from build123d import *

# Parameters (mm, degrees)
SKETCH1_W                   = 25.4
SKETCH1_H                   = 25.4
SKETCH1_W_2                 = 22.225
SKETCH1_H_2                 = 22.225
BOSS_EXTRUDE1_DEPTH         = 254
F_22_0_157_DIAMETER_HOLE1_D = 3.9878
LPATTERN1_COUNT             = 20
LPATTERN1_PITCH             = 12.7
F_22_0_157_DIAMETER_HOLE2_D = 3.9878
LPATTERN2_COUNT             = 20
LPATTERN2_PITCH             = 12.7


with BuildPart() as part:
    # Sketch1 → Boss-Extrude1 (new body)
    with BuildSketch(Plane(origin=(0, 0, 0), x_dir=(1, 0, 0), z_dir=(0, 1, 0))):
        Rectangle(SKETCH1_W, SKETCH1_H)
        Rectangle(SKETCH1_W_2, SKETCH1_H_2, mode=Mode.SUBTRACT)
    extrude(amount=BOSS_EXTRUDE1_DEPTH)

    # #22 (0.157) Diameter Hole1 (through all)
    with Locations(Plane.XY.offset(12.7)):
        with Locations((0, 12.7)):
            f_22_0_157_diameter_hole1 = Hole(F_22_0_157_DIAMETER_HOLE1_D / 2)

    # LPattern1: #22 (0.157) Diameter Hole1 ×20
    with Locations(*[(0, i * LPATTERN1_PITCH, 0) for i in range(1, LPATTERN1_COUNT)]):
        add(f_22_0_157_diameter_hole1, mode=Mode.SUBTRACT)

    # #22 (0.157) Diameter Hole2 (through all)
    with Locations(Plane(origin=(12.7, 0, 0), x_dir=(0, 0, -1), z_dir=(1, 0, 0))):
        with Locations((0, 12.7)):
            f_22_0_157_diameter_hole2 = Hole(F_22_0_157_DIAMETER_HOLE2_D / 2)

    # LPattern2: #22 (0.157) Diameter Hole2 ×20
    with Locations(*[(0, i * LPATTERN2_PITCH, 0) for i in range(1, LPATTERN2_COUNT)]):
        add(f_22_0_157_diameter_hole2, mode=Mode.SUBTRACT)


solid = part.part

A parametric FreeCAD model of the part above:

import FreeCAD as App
import Part
import Sketcher

V = App.Vector
Q = App.Units.Quantity


def add_polygon(sketch, points):
    """Adds a closed chain of lines whose ends are joined by coincident constraints."""
    first, n = sketch.GeometryCount, len(points)
    for a, b in zip(points, points[1:] + points[:1]):
        sketch.addGeometry(Part.LineSegment(App.Vector(*a, 0), App.Vector(*b, 0)), False)
    for i in range(n):
        sketch.addConstraint(Sketcher.Constraint("Coincident", first + i, 2, first + (i + 1) % n, 1))

doc = App.newDocument("Part")
body = doc.addObject("PartDesign::Body", "Body")

sketch1 = body.newObject("Sketcher::SketchObject", "Sketch")
sketch1.AttachmentSupport = (doc.getObject("XZ_Plane"), [""])
sketch1.MapMode = "FlatFace"
add_polygon(sketch1, [(-13, -13), (-13, 13), (13, 13), (13, -13)])
add_polygon(sketch1, [(11, 11), (-11, 11), (-11, -11), (11, -11)])
sketch1.addConstraint(Sketcher.Constraint("Vertical", 0))
sketch1.addConstraint(Sketcher.Constraint("Horizontal", 1))
sketch1.addConstraint(Sketcher.Constraint("Vertical", 2))
sketch1.addConstraint(Sketcher.Constraint("Horizontal", 3))
sketch1.addConstraint(Sketcher.Constraint("Horizontal", 4))
sketch1.addConstraint(Sketcher.Constraint("Vertical", 5))
sketch1.addConstraint(Sketcher.Constraint("Horizontal", 6))
sketch1.addConstraint(Sketcher.Constraint("Vertical", 7))
sketch1.addConstraint(Sketcher.Constraint("Symmetric", 0, 2, 2, 2, -1, 1))
sketch1.addConstraint(Sketcher.Constraint("Symmetric", 4, 2, 6, 2, -1, 1))
sketch1.addConstraint(Sketcher.Constraint("Equal", 3, 0))
sketch1.addConstraint(Sketcher.Constraint("Equal", 6, 5))
sketch1.addConstraint(Sketcher.Constraint("DistanceX", 1, 1, 1, 2, Q("1 in")))
sketch1.addConstraint(Sketcher.Constraint("DistanceX", 4, 2, 4, 1, Q("0.875 in")))
pad1 = body.newObject("PartDesign::Pad", "Pad")
pad1.Profile = sketch1
pad1.Length = Q("10 in")
pad1.Reversed = True

sketch2 = body.newObject("Sketcher::SketchObject", "Sketch001")
sketch2.AttachmentSupport = (doc.getObject("XY_Plane"), [""])
sketch2.MapMode = "FlatFace"
sketch2.AttachmentOffset = App.Placement(V(0, 0, 0.5 * 25.4), App.Rotation())
sketch2.addGeometry(Part.Circle(V(0, 12.7, 0), V(0, 0, 1), 2), False)
sketch2.addConstraint(Sketcher.Constraint("PointOnObject", 0, 3, -2))
sketch2.addConstraint(Sketcher.Constraint("Diameter", 0, Q("0.157 in")))
sketch2.addConstraint(Sketcher.Constraint("DistanceY", -1, 1, 0, 3, Q("0.5 in")))
doc.recompute()
hole = body.newObject("PartDesign::Hole", "Hole")
hole.Profile = sketch2
hole.ThreadType = "None"
hole.Diameter = Q("0.157 in")
hole.DepthType = "ThroughAll"
doc.recompute()

linearpattern = body.newObject("PartDesign::LinearPattern", "LinearPattern")
linearpattern.Originals = [hole]
linearpattern.Direction = (doc.getObject("Y_Axis"), [""])
linearpattern.Mode = "offset"
linearpattern.Offset = Q("0.5 in")
linearpattern.Occurrences = 20
body.Tip = linearpattern

sketch3 = body.newObject("Sketcher::SketchObject", "Sketch002")
sketch3.AttachmentSupport = (doc.getObject("YZ_Plane"), [""])
sketch3.MapMode = "FlatFace"
sketch3.AttachmentOffset = App.Placement(V(0, 0, 0.5 * 25.4), App.Rotation())
sketch3.addGeometry(Part.Circle(V(12.7, 0, 0), V(0, 0, 1), 2), False)
sketch3.addConstraint(Sketcher.Constraint("PointOnObject", 0, 3, -1))
sketch3.addConstraint(Sketcher.Constraint("Diameter", 0, Q("0.157 in")))
sketch3.addConstraint(Sketcher.Constraint("DistanceX", -1, 1, 0, 3, Q("0.5 in")))
doc.recompute()
hole2 = body.newObject("PartDesign::Hole", "Hole001")
hole2.Profile = sketch3
hole2.ThreadType = "None"
hole2.Diameter = Q("0.157 in")
hole2.DepthType = "ThroughAll"
doc.recompute()

linearpattern2 = body.newObject("PartDesign::LinearPattern", "LinearPattern001")
linearpattern2.Originals = [hole2]
linearpattern2.Direction = (doc.getObject("Y_Axis"), [""])
linearpattern2.Mode = "offset"
linearpattern2.Offset = Q("0.5 in")
linearpattern2.Occurrences = 20
body.Tip = linearpattern2

doc.recompute()
